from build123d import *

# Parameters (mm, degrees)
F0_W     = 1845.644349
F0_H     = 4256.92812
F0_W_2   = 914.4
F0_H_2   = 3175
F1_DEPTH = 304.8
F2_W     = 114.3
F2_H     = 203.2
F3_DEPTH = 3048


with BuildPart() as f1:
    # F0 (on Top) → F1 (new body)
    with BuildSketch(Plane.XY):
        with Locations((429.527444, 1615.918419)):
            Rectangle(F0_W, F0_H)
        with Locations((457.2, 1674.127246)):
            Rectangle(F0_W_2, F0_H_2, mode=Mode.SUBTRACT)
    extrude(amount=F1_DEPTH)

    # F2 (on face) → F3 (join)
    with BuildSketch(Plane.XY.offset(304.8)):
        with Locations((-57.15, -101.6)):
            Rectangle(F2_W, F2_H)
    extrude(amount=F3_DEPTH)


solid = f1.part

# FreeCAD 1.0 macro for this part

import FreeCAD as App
import Part
import Sketcher
from FreeCAD import Vector
Q = App.Units.Quantity

doc = App.newDocument("Part")
body = doc.addObject("PartDesign::Body", "Body")

# Sketch on XY plane
sketch1 = body.newObject("Sketcher::SketchObject", "Sketch")
sketch1.AttachmentSupport = (doc.getObject("XY_Plane"), [""])
sketch1.MapMode = "FlatFace"
sketch1.addGeometry(Part.LineSegment(Vector(-493, 3744, 0), Vector(-493, -513, 0)), False)
sketch1.addGeometry(Part.LineSegment(Vector(-493, -513, 0), Vector(1352, -513, 0)), False)
sketch1.addGeometry(Part.LineSegment(Vector(1352, -513, 0), Vector(1352, 3744, 0)), False)
sketch1.addGeometry(Part.LineSegment(Vector(1352, 3744, 0), Vector(-493, 3744, 0)), False)
sketch1.addGeometry(Part.LineSegment(Vector(914, 87, 0), Vector(0, 87, 0)), False)
sketch1.addGeometry(Part.LineSegment(Vector(0, 87, 0), Vector(0, 3262, 0)), False)
sketch1.addGeometry(Part.LineSegment(Vector(0, 3262, 0), Vector(914, 3262, 0)), False)
sketch1.addGeometry(Part.LineSegment(Vector(914, 3262, 0), Vector(914, 87, 0)), False)
sketch1.addConstraint(Sketcher.Constraint("Coincident", 0, 2, 1, 1))
sketch1.addConstraint(Sketcher.Constraint("Coincident", 1, 2, 2, 1))
sketch1.addConstraint(Sketcher.Constraint("Coincident", 2, 2, 3, 1))
sketch1.addConstraint(Sketcher.Constraint("Coincident", 3, 2, 0, 1))
sketch1.addConstraint(Sketcher.Constraint("Coincident", 4, 2, 5, 1))
sketch1.addConstraint(Sketcher.Constraint("Coincident", 5, 2, 6, 1))
sketch1.addConstraint(Sketcher.Constraint("Coincident", 6, 2, 7, 1))
sketch1.addConstraint(Sketcher.Constraint("Coincident", 7, 2, 4, 1))
sketch1.addConstraint(Sketcher.Constraint("Vertical", 0))
sketch1.addConstraint(Sketcher.Constraint("Horizontal", 1))
sketch1.addConstraint(Sketcher.Constraint("Vertical", 2))
sketch1.addConstraint(Sketcher.Constraint("Horizontal", 3))
sketch1.addConstraint(Sketcher.Constraint("Horizontal", 4))
sketch1.addConstraint(Sketcher.Constraint("Vertical", 5))
sketch1.addConstraint(Sketcher.Constraint("Horizontal", 6))
sketch1.addConstraint(Sketcher.Constraint("Vertical", 7))
sketch1.addConstraint(Sketcher.Constraint("PointOnObject", 4, 2, -2))
sketch1.addConstraint(Sketcher.Constraint("DistanceX", 4, 2, 4, 1, Q("36 in")))
sketch1.addConstraint(Sketcher.Constraint("DistanceY", 5, 1, 5, 2, Q("125 in")))
sketch1.addConstraint(Sketcher.Constraint("DistanceX", 1, 1, 1, 2, 1845.644349))
sketch1.addConstraint(Sketcher.Constraint("DistanceY", 0, 2, 0, 1, 4256.92812))
sketch1.addConstraint(Sketcher.Constraint("DistanceX", 0, 2, -1, 1, 493.294731))
sketch1.addConstraint(Sketcher.Constraint("DistanceY", 0, 2, -1, 1, 512.545641))
sketch1.addConstraint(Sketcher.Constraint("DistanceY", -1, 1, 4, 2, 86.627246))
pad1 = body.newObject("PartDesign::Pad", "Pad")
pad1.Profile = sketch1
pad1.Length = Q("12 in")

# Sketch on XY plane
sketch2 = body.newObject("Sketcher::SketchObject", "Sketch001")
sketch2.AttachmentSupport = (doc.getObject("XY_Plane"), [""])
sketch2.MapMode = "FlatFace"
sketch2.AttachmentOffset = App.Placement(Vector(0, 0, 12 * 25.4), App.Rotation())
sketch2.addGeometry(Part.LineSegment(Vector(-114, 0, 0), Vector(-114, -203, 0)), False)
sketch2.addGeometry(Part.LineSegment(Vector(-114, -203, 0), Vector(0, -203, 0)), False)
sketch2.addGeometry(Part.LineSegment(Vector(0, -203, 0), Vector(0, 0, 0)), False)
sketch2.addGeometry(Part.LineSegment(Vector(0, 0, 0), Vector(-114, 0, 0)), False)
sketch2.addConstraint(Sketcher.Constraint("Coincident", 0, 2, 1, 1))
sketch2.addConstraint(Sketcher.Constraint("Coincident", 1, 2, 2, 1))
sketch2.addConstraint(Sketcher.Constraint("Coincident", 2, 2, 3, 1))
sketch2.addConstraint(Sketcher.Constraint("Coincident", 3, 2, 0, 1))
sketch2.addConstraint(Sketcher.Constraint("Vertical", 0))
sketch2.addConstraint(Sketcher.Constraint("Horizontal", 1))
sketch2.addConstraint(Sketcher.Constraint("Vertical", 2))
sketch2.addConstraint(Sketcher.Constraint("Horizontal", 3))
sketch2.addConstraint(Sketcher.Constraint("Coincident", 2, 2, -1, 1))
sketch2.addConstraint(Sketcher.Constraint("DistanceY", 0, 2, 0, 1, Q("8 in")))
sketch2.addConstraint(Sketcher.Constraint("DistanceX", 1, 1, 1, 2, Q("4.5 in")))
pad2 = body.newObject("PartDesign::Pad", "Pad001")
pad2.Profile = sketch2
pad2.Length = Q("120 in")

doc.recompute()
